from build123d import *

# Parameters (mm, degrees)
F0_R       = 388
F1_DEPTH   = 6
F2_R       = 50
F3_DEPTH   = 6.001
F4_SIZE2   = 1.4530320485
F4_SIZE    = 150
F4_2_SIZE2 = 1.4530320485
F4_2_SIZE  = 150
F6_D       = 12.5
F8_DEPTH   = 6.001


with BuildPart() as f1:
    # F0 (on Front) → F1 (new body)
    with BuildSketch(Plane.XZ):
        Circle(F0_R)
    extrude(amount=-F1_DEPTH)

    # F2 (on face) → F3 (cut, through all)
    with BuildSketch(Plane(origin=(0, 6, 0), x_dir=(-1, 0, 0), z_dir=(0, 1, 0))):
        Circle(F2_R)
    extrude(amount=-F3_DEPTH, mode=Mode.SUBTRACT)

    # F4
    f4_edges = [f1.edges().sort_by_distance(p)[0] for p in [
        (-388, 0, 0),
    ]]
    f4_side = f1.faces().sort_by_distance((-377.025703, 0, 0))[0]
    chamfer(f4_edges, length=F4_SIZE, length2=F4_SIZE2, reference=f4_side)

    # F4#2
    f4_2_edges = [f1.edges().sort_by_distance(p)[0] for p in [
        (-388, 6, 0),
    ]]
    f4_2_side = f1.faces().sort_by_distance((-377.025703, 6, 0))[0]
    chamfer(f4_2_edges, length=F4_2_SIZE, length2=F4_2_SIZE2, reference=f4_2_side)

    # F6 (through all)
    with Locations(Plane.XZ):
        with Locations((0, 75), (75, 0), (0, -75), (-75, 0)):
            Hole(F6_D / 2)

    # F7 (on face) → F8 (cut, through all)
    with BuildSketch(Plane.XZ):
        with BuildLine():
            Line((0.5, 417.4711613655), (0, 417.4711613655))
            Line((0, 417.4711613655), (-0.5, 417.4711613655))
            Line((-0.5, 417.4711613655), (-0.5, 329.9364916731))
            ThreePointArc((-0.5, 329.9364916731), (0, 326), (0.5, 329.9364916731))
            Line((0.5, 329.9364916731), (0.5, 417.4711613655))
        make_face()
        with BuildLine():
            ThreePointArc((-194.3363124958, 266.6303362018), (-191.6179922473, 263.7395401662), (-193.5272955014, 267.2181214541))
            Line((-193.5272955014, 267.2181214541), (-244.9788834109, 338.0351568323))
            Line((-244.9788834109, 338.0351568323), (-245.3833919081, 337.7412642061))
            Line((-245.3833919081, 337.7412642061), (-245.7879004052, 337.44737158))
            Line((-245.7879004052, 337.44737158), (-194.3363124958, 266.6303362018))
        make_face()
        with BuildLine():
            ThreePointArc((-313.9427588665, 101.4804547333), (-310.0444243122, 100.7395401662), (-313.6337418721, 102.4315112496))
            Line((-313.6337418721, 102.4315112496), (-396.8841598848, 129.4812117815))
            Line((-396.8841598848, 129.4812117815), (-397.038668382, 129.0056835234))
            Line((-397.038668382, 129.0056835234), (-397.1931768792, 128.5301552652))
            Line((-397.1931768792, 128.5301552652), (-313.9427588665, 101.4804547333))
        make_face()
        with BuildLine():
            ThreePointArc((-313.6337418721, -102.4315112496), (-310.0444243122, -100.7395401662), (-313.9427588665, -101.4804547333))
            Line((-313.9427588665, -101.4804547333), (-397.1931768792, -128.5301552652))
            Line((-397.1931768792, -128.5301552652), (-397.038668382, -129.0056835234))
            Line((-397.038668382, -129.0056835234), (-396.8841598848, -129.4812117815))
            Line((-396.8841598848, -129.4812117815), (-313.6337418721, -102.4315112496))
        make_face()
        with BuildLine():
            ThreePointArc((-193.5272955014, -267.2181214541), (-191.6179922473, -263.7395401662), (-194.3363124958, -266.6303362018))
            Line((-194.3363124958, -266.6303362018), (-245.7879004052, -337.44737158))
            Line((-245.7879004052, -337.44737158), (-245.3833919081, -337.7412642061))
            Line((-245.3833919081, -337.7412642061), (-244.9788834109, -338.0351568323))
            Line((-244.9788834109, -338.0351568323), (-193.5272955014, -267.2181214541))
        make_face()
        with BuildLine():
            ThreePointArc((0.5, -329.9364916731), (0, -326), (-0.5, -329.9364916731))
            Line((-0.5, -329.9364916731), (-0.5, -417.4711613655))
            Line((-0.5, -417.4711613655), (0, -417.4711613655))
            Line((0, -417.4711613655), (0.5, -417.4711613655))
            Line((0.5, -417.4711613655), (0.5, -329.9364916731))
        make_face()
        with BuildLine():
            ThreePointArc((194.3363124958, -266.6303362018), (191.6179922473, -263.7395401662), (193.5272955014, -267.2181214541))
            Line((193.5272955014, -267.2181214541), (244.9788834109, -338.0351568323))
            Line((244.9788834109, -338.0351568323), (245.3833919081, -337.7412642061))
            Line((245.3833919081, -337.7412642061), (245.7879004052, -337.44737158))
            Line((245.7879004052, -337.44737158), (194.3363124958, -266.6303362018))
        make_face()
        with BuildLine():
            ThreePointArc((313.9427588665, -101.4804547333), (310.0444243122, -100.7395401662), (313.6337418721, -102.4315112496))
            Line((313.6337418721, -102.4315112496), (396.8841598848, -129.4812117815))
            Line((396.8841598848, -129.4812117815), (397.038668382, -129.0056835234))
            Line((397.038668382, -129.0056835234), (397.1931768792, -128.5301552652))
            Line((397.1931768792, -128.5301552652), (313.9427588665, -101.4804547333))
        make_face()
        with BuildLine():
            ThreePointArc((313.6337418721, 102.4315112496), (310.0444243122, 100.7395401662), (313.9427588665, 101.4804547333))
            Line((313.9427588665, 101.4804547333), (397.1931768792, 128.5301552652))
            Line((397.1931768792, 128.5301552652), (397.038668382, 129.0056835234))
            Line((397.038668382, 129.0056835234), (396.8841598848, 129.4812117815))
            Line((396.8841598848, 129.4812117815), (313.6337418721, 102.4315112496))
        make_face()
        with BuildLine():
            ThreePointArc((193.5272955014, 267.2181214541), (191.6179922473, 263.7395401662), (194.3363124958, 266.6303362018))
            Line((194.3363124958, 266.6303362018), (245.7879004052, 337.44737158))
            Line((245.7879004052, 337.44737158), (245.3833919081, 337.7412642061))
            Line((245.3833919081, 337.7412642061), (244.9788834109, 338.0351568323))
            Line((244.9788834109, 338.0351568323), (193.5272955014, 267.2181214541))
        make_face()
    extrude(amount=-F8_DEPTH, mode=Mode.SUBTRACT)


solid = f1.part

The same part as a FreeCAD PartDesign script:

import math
import FreeCAD as App
import Part
import Sketcher
from FreeCAD import Vector
Q = App.Units.Quantity


def edges_at(feature, points):
    """Names of the edges that pass closest to the given points."""
    edges = feature.Shape.Edges
    near = lambda p: min(range(len(edges)), key=lambda i: edges[i].distToShape(Part.Vertex(*p))[0])
    return sorted({f"Edge{near(p) + 1}" for p in points})

doc = App.newDocument("Part")
body = doc.addObject("PartDesign::Body", "Body")

# Sketch on XZ plane
sketch1 = body.newObject("Sketcher::SketchObject", "Sketch")
sketch1.AttachmentSupport = (doc.getObject("XZ_Plane"), [""])
sketch1.MapMode = "FlatFace"
sketch1.addGeometry(Part.Circle(Vector(0, 0, 0), Vector(0, 0, 1), 388), False)
sketch1.addConstraint([
    Sketcher.Constraint("Coincident", 0, 3, -1, 1),
    Sketcher.Constraint("Diameter", 0, Q("776 mm")),
])
pad1 = body.newObject("PartDesign::Pad", "Pad")
pad1.Profile = sketch1
pad1.Length = 6
pad1.Reversed = True

# Sketch on XZ plane
sketch2 = body.newObject("Sketcher::SketchObject", "Sketch001")
sketch2.AttachmentSupport = (doc.getObject("XZ_Plane"), [""])
sketch2.MapMode = "FlatFace"
sketch2.AttachmentOffset = App.Placement(Vector(0, 0, -6), App.Rotation())
sketch2.addGeometry(Part.Circle(Vector(0, 0, 0), Vector(0, 0, 1), 50), False)
sketch2.addConstraint([
    Sketcher.Constraint("Coincident", 0, 3, -1, 1),
    Sketcher.Constraint("Diameter", 0, Q("100 mm")),
])
pocket1 = body.newObject("PartDesign::Pocket", "Pocket")
pocket1.Profile = sketch2
pocket1.Type = "ThroughAll"
pocket1.Reversed = True
doc.recompute()

chamfer = body.newObject("PartDesign::Chamfer", "Chamfer")
chamfer.Base = (pocket1, edges_at(pocket1, [(-388, 0, 0)]))
chamfer.ChamferType = "Two distances"
chamfer.Size = 150
chamfer.Size2 = 1.453032
chamfer.FlipDirection = True
doc.recompute()

chamfer2 = body.newObject("PartDesign::Chamfer", "Chamfer001")
chamfer2.Base = (chamfer, edges_at(chamfer, [(-388, 6, 0)]))
chamfer2.ChamferType = "Two distances"
chamfer2.Size = 150
chamfer2.Size2 = 1.453032
chamfer2.FlipDirection = True

# Sketch on XZ plane
sketch3 = body.newObject("Sketcher::SketchObject", "Sketch002")
sketch3.AttachmentSupport = (doc.getObject("XZ_Plane"), [""])
sketch3.MapMode = "FlatFace"
sketch3.addGeometry([
    Part.Circle(Vector(0, 75, 0), Vector(0, 0, 1), 6.25),
    Part.Circle(Vector(75, 0, 0), Vector(0, 0, 1), 6.25),
    Part.Circle(Vector(0, -75, 0), Vector(0, 0, 1), 6.25),
    Part.Circle(Vector(-75, 0, 0), Vector(0, 0, 1), 6.25),
], False)
sketch3.addConstraint([
    Sketcher.Constraint("Equal", 0, 1),
    Sketcher.Constraint("Equal", 1, 2),
    Sketcher.Constraint("Equal", 2, 3),
    Sketcher.Constraint("Symmetric", 0, 3, 2, 3, -1, 1),
    Sketcher.Constraint("Symmetric", 1, 3, 3, 3, -1, 1),
    Sketcher.Constraint("PointOnObject", 0, 3, -2),
    Sketcher.Constraint("PointOnObject", 1, 3, -1),
    Sketcher.Constraint("Diameter", 0, Q("12.5 mm")),
    Sketcher.Constraint("DistanceY", -1, 1, 0, 3, Q("75 mm")),
    Sketcher.Constraint("DistanceX", -1, 1, 1, 3, Q("75 mm")),
])
doc.recompute()
hole = body.newObject("PartDesign::Hole", "Hole")
hole.Profile = sketch3
hole.ThreadType = "None"
hole.Diameter = 12.5
hole.DepthType = "ThroughAll"

# Sketch on XZ plane
sketch4 = body.newObject("Sketcher::SketchObject", "Sketch003")
sketch4.AttachmentSupport = (doc.getObject("XZ_Plane"), [""])
sketch4.MapMode = "FlatFace"
sketch4.addGeometry([
    Part.LineSegment(Vector(0.5, 417.471161, 0), Vector(-0.5, 417.471161, 0)),  # 0
    Part.LineSegment(Vector(-0.5, 417.471161, 0), Vector(-0.5, 329.936492, 0)),  # 1
    Part.ArcOfCircle(Part.Circle(Vector(0, 328, 0), Vector(0, 0, 1), 2), math.radians(104.477512), math.radians(435.522488)),  # 2
    Part.LineSegment(Vector(0.5, 329.936492, 0), Vector(0.5, 417.471161, 0)),  # 3
    Part.ArcOfCircle(Part.Circle(Vector(-192.793563, 265.357574, 0), Vector(0, 0, 1), 2), math.radians(140.477512), math.radians(471.522488)),  # 4
    Part.LineSegment(Vector(-193.527296, 267.218121, 0), Vector(-244.978883, 338.035157, 0)),  # 5
    Part.LineSegment(Vector(-244.978883, 338.035157, 0), Vector(-245.383392, 337.741264, 0)),  # 6
    Part.LineSegment(Vector(-245.383392, 337.741264, 0), Vector(-245.7879, 337.447372, 0)),  # 7
    Part.LineSegment(Vector(-245.7879, 337.447372, 0), Vector(-194.336312, 266.630336, 0)),  # 8
    Part.ArcOfCircle(Part.Circle(Vector(-311.946537, 101.357574, 0), Vector(0, 0, 1), 2), math.radians(176.477512), math.radians(507.522488)),  # 9
    Part.LineSegment(Vector(-313.633742, 102.431511, 0), Vector(-396.88416, 129.481212, 0)),  # 10
    Part.LineSegment(Vector(-396.88416, 129.481212, 0), Vector(-397.038668, 129.005684, 0)),  # 11
    Part.LineSegment(Vector(-397.038668, 129.005684, 0), Vector(-397.193177, 128.530155, 0)),  # 12
    Part.LineSegment(Vector(-397.193177, 128.530155, 0), Vector(-313.942759, 101.480455, 0)),  # 13
    Part.ArcOfCircle(Part.Circle(Vector(-311.946537, -101.357574, 0), Vector(0, 0, 1), 2), math.radians(-147.522488), math.radians(183.522488)),  # 14
    Part.LineSegment(Vector(-313.942759, -101.480455, 0), Vector(-397.193177, -128.530155, 0)),  # 15
    Part.LineSegment(Vector(-397.193177, -128.530155, 0), Vector(-397.038668, -129.005684, 0)),  # 16
    Part.LineSegment(Vector(-397.038668, -129.005684, 0), Vector(-396.88416, -129.481212, 0)),  # 17
    Part.LineSegment(Vector(-396.88416, -129.481212, 0), Vector(-313.633742, -102.431511, 0)),  # 18
    Part.ArcOfCircle(Part.Circle(Vector(-192.793563, -265.357574, 0), Vector(0, 0, 1), 2), math.radians(-111.522488), math.radians(219.522488)),  # 19
    Part.LineSegment(Vector(-194.336312, -266.630336, 0), Vector(-245.7879, -337.447372, 0)),  # 20
    Part.LineSegment(Vector(-245.7879, -337.447372, 0), Vector(-245.383392, -337.741264, 0)),  # 21
    Part.LineSegment(Vector(-245.383392, -337.741264, 0), Vector(-244.978883, -338.035157, 0)),  # 22
    Part.LineSegment(Vector(-244.978883, -338.035157, 0), Vector(-193.527296, -267.218121, 0)),  # 23
    Part.ArcOfCircle(Part.Circle(Vector(0, -328, 0), Vector(0, 0, 1), 2), math.radians(-75.522488), math.radians(255.522488)),  # 24
    Part.LineSegment(Vector(-0.5, -329.936492, 0), Vector(-0.5, -417.471161, 0)),  # 25
    Part.LineSegment(Vector(-0.5, -417.471161, 0), Vector(0.5, -417.471161, 0)),  # 26
    Part.LineSegment(Vector(0.5, -417.471161, 0), Vector(0.5, -329.936492, 0)),  # 27
    Part.ArcOfCircle(Part.Circle(Vector(192.793563, -265.357574, 0), Vector(0, 0, 1), 2), math.radians(-39.522488), math.radians(291.522488)),  # 28
    Part.LineSegment(Vector(193.527296, -267.218121, 0), Vector(244.978883, -338.035157, 0)),  # 29
    Part.LineSegment(Vector(244.978883, -338.035157, 0), Vector(245.383392, -337.741264, 0)),  # 30
    Part.LineSegment(Vector(245.383392, -337.741264, 0), Vector(245.7879, -337.447372, 0)),  # 31
    Part.LineSegment(Vector(245.7879, -337.447372, 0), Vector(194.336312, -266.630336, 0)),  # 32
    Part.ArcOfCircle(Part.Circle(Vector(311.946537, -101.357574, 0), Vector(0, 0, 1), 2), math.radians(-3.522488), math.radians(327.522488)),  # 33
    Part.LineSegment(Vector(313.633742, -102.431511, 0), Vector(396.88416, -129.481212, 0)),  # 34
    Part.LineSegment(Vector(396.88416, -129.481212, 0), Vector(397.038668, -129.005684, 0)),  # 35
    Part.LineSegment(Vector(397.038668, -129.005684, 0), Vector(397.193177, -128.530155, 0)),  # 36
    Part.LineSegment(Vector(397.193177, -128.530155, 0), Vector(313.942759, -101.480455, 0)),  # 37
    Part.ArcOfCircle(Part.Circle(Vector(311.946537, 101.357574, 0), Vector(0, 0, 1), 2), math.radians(32.477512), math.radians(363.522488)),  # 38
    Part.LineSegment(Vector(313.942759, 101.480455, 0), Vector(397.193177, 128.530155, 0)),  # 39
    Part.LineSegment(Vector(397.193177, 128.530155, 0), Vector(397.038668, 129.005684, 0)),  # 40
    Part.LineSegment(Vector(397.038668, 129.005684, 0), Vector(396.88416, 129.481212, 0)),  # 41
    Part.LineSegment(Vector(396.88416, 129.481212, 0), Vector(313.633742, 102.431511, 0)),  # 42
    Part.ArcOfCircle(Part.Circle(Vector(192.793563, 265.357574, 0), Vector(0, 0, 1), 2), math.radians(68.477512), math.radians(399.522488)),  # 43
    Part.LineSegment(Vector(194.336312, 266.630336, 0), Vector(245.7879, 337.447372, 0)),  # 44
    Part.LineSegment(Vector(245.7879, 337.447372, 0), Vector(245.383392, 337.741264, 0)),  # 45
    Part.LineSegment(Vector(245.383392, 337.741264, 0), Vector(244.978883, 338.035157, 0)),  # 46
    Part.LineSegment(Vector(244.978883, 338.035157, 0), Vector(193.527296, 267.218121, 0)),  # 47
], False)
sketch4.addConstraint([
    Sketcher.Constraint("Coincident", 0, 2, 1, 1),
    Sketcher.Constraint("Coincident", 1, 2, 2, 1),
    Sketcher.Constraint("Coincident", 2, 2, 3, 1),
    Sketcher.Constraint("Coincident", 3, 2, 0, 1),
    Sketcher.Constraint("Coincident", 4, 2, 5, 1),
    Sketcher.Constraint("Coincident", 5, 2, 6, 1),
    Sketcher.Constraint("Coincident", 6, 2, 7, 1),
    Sketcher.Constraint("Coincident", 7, 2, 8, 1),
    Sketcher.Constraint("Coincident", 8, 2, 4, 1),
    Sketcher.Constraint("Coincident", 9, 2, 10, 1),
    Sketcher.Constraint("Coincident", 10, 2, 11, 1),
    Sketcher.Constraint("Coincident", 11, 2, 12, 1),
    Sketcher.Constraint("Coincident", 12, 2, 13, 1),
    Sketcher.Constraint("Coincident", 13, 2, 9, 1),
    Sketcher.Constraint("Coincident", 14, 2, 15, 1),
    Sketcher.Constraint("Coincident", 15, 2, 16, 1),
    Sketcher.Constraint("Coincident", 16, 2, 17, 1),
    Sketcher.Constraint("Coincident", 17, 2, 18, 1),
    Sketcher.Constraint("Coincident", 18, 2, 14, 1),
    Sketcher.Constraint("Coincident", 19, 2, 20, 1),
    Sketcher.Constraint("Coincident", 20, 2, 21, 1),
    Sketcher.Constraint("Coincident", 21, 2, 22, 1),
    Sketcher.Constraint("Coincident", 22, 2, 23, 1),
    Sketcher.Constraint("Coincident", 23, 2, 19, 1),
    Sketcher.Constraint("Coincident", 24, 2, 25, 1),
    Sketcher.Constraint("Coincident", 25, 2, 26, 1),
    Sketcher.Constraint("Coincident", 26, 2, 27, 1),
    Sketcher.Constraint("Coincident", 27, 2, 24, 1),
    Sketcher.Constraint("Coincident", 28, 2, 29, 1),
    Sketcher.Constraint("Coincident", 29, 2, 30, 1),
    Sketcher.Constraint("Coincident", 30, 2, 31, 1),
    Sketcher.Constraint("Coincident", 31, 2, 32, 1),
    Sketcher.Constraint("Coincident", 32, 2, 28, 1),
    Sketcher.Constraint("Coincident", 33, 2, 34, 1),
    Sketcher.Constraint("Coincident", 34, 2, 35, 1),
    Sketcher.Constraint("Coincident", 35, 2, 36, 1),
    Sketcher.Constraint("Coincident", 36, 2, 37, 1),
    Sketcher.Constraint("Coincident", 37, 2, 33, 1),
    Sketcher.Constraint("Coincident", 38, 2, 39, 1),
    Sketcher.Constraint("Coincident", 39, 2, 40, 1),
    Sketcher.Constraint("Coincident", 40, 2, 41, 1),
    Sketcher.Constraint("Coincident", 41, 2, 42, 1),
    Sketcher.Constraint("Coincident", 42, 2, 38, 1),
    Sketcher.Constraint("Coincident", 43, 2, 44, 1),
    Sketcher.Constraint("Coincident", 44, 2, 45, 1),
    Sketcher.Constraint("Coincident", 45, 2, 46, 1),
    Sketcher.Constraint("Coincident", 46, 2, 47, 1),
    Sketcher.Constraint("Coincident", 47, 2, 43, 1),
    Sketcher.Constraint("Horizontal", 0),
    Sketcher.Constraint("Vertical", 1),
    Sketcher.Constraint("Vertical", 3),
    Sketcher.Constraint("Vertical", 25),
    Sketcher.Constraint("Horizontal", 26),
    Sketcher.Constraint("Vertical", 27),
    Sketcher.Constraint("Equal", 2, 4),
    Sketcher.Constraint("Equal", 4, 9),
    Sketcher.Constraint("Equal", 9, 14),
    Sketcher.Constraint("Equal", 14, 19),
    Sketcher.Constraint("Equal", 19, 24),
    Sketcher.Constraint("Equal", 24, 28),
    Sketcher.Constraint("Equal", 28, 33),
    Sketcher.Constraint("Equal", 33, 38),
    Sketcher.Constraint("Equal", 38, 43),
    Sketcher.Constraint("Symmetric", 2, 3, 24, 3, -1, 1),
    Sketcher.Constraint("Symmetric", 4, 3, 28, 3, -1, 1),
    Sketcher.Constraint("Symmetric", 9, 3, 33, 3, -1, 1),
    Sketcher.Constraint("Symmetric", 14, 3, 38, 3, -1, 1),
    Sketcher.Constraint("Symmetric", 19, 3, 43, 3, -1, 1),
    Sketcher.Constraint("Symmetric", 3, 2, 25, 2, -1, 1),
    Sketcher.Constraint("Symmetric", 5, 2, 29, 2, -1, 1),
    Sketcher.Constraint("Symmetric", 6, 2, 30, 2, -1, 1),
    Sketcher.Constraint("Symmetric", 7, 2, 31, 2, -1, 1),
    Sketcher.Constraint("Symmetric", 10, 2, 34, 2, -1, 1),
    Sketcher.Constraint("Symmetric", 11, 2, 35, 2, -1, 1),
    Sketcher.Constraint("Symmetric", 12, 2, 36, 2, -1, 1),
    Sketcher.Constraint("Symmetric", 15, 2, 39, 2, -1, 1),
    Sketcher.Constraint("Symmetric", 16, 2, 40, 2, -1, 1),
    Sketcher.Constraint("Symmetric", 17, 2, 41, 2, -1, 1),
    Sketcher.Constraint("Symmetric", 20, 2, 44, 2, -1, 1),
    Sketcher.Constraint("Symmetric", 21, 2, 45, 2, -1, 1),
    Sketcher.Constraint("Symmetric", 22, 2, 46, 2, -1, 1),
    Sketcher.Constraint("Symmetric", 19, 3, 28, 3, -2),
    Sketcher.Constraint("Symmetric", 14, 3, 33, 3, -2),
    Sketcher.Constraint("Symmetric", 1, 2, 2, 2, -2),
    Sketcher.Constraint("Symmetric", 22, 2, 29, 2, -2),
    Sketcher.Constraint("Symmetric", 21, 2, 30, 2, -2),
    Sketcher.Constraint("Symmetric", 20, 2, 31, 2, -2),
    Sketcher.Constraint("Symmetric", 17, 2, 34, 2, -2),
    Sketcher.Constraint("Symmetric", 16, 2, 35, 2, -2),
    Sketcher.Constraint("Symmetric", 15, 2, 36, 2, -2),
    Sketcher.Constraint("Perpendicular", 5, 6),
    Sketcher.Constraint("Parallel", 6, 7),
    Sketcher.Constraint("Perpendicular", 7, 8),
    Sketcher.Constraint("Perpendicular", 10, 11),
    Sketcher.Constraint("Parallel", 11, 12),
    Sketcher.Constraint("Perpendicular", 12, 13),
    Sketcher.Constraint("Perpendicular", 15, 16),
    Sketcher.Constraint("Perpendicular", 17, 18),
    Sketcher.Constraint("Perpendicular", 20, 21),
    Sketcher.Constraint("Perpendicular", 22, 23),
    Sketcher.Constraint("Parallel", 8, 29),
    Sketcher.Constraint("Perpendicular", 31, 32),
    Sketcher.Constraint("Parallel", 13, 34),
    Sketcher.Constraint("Perpendicular", 36, 37),
    Sketcher.Constraint("Parallel", 18, 39),
    Sketcher.Constraint("Perpendicular", 41, 42),
    Sketcher.Constraint("Parallel", 23, 44),
    Sketcher.Constraint("Perpendicular", 46, 47),
    Sketcher.Constraint("Horizontal", 24, 2, 27, 2),
    Sketcher.Constraint("Equal", 6, 7),
    Sketcher.Constraint("Equal", 5, 8),
    Sketcher.Constraint("Equal", 8, 10),
    Sketcher.Constraint("Equal", 7, 11),
    Sketcher.Constraint("Equal", 11, 12),
    Sketcher.Constraint("Equal", 10, 13),
    Sketcher.Constraint("Radius", 2, Q("2 mm")),
    Sketcher.Constraint("DistanceX", 0, 2, 0, 1, Q("1 mm")),
    Sketcher.Constraint("Angle", 5, Q("126 deg")),
    Sketcher.Constraint("Angle", 10, Q("162 deg")),
    Sketcher.Constraint("DistanceY", -1, 1, 2, 3, Q("328 mm")),
    Sketcher.Constraint("DistanceY", 9, 3, 4, 3, Q("164 mm")),
    Sketcher.Constraint("Distance", 6, Q("0.5 mm")),
    Sketcher.Constraint("DistanceY", 1, 2, 1, 1, Q("87.53467 mm")),
    Sketcher.Constraint("DistanceX", 7, 2, -1, 1, Q("245.7879 mm")),
    Sketcher.Constraint("DistanceX", 14, 3, 28, 3, Q("504.7401 mm")),
    Sketcher.Constraint("DistanceY", 9, 2, 10, 2, Q("27.049701 mm")),
    Sketcher.Constraint("DistanceY", -1, 1, 4, 2, Q("267.218121 mm")),
])
pocket2 = body.newObject("PartDesign::Pocket", "Pocket001")
pocket2.Profile = sketch4
pocket2.Type = "ThroughAll"

doc.recompute()
